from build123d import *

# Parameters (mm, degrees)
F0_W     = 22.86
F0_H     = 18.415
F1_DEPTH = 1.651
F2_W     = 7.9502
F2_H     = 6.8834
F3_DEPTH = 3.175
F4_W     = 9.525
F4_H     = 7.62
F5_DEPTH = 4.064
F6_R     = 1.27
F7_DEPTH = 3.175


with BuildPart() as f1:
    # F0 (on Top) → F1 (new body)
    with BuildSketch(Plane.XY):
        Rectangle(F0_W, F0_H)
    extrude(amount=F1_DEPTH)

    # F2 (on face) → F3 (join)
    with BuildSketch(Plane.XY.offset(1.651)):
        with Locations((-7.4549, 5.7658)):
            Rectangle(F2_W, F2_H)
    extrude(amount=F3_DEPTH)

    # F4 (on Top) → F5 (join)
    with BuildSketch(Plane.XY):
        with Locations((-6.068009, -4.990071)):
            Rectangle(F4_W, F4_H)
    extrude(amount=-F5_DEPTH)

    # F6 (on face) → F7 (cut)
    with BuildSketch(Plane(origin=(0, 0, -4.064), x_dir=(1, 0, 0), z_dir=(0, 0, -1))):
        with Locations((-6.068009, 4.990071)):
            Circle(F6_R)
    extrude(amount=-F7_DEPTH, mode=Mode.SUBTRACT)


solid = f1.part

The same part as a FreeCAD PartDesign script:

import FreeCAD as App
import Part
import Sketcher
Q = App.Units.Quantity

doc = App.newDocument("Part")
body = doc.addObject("PartDesign::Body", "Body")

# Sketch on XY plane
sketch1 = doc.addObject("Sketcher::SketchObject", "Sketch")
body.addObject(sketch1)
sketch1.AttachmentSupport = (doc.XY_Plane, [""])
sketch1.MapMode = "FlatFace"
sketch1.addGeometry([
    Part.LineSegment(App.Vector(-11.43, 9.2075, 0), App.Vector(-11.43, -9.2075, 0)),
    Part.LineSegment(App.Vector(-11.43, -9.2075, 0), App.Vector(11.43, -9.2075, 0)),
    Part.LineSegment(App.Vector(11.43, -9.2075, 0), App.Vector(11.43, 9.2075, 0)),
    Part.LineSegment(App.Vector(11.43, 9.2075, 0), App.Vector(-11.43, 9.2075, 0)),
], False)
sketch1.addConstraint([
    Sketcher.Constraint("Coincident", 0, 2, 1, 1),
    Sketcher.Constraint("Coincident", 1, 2, 2, 1),
    Sketcher.Constraint("Coincident", 2, 2, 3, 1),
    Sketcher.Constraint("Coincident", 3, 2, 0, 1),
    Sketcher.Constraint("Vertical", 0),
    Sketcher.Constraint("Horizontal", 1),
    Sketcher.Constraint("Vertical", 2),
    Sketcher.Constraint("Horizontal", 3),
    Sketcher.Constraint("Symmetric", 0, 2, 2, 2, -1, 1),
    Sketcher.Constraint("DistanceX", 1, 1, 1, 2, Q("0.9 in")),
    Sketcher.Constraint("DistanceY", 0, 2, 0, 1, Q("0.725 in")),
])
pad1 = doc.addObject("PartDesign::Pad", "Pad")
body.addObject(pad1)
pad1.Profile = sketch1
pad1.Length = Q("0.065 in")

# Sketch on XY plane
sketch2 = doc.addObject("Sketcher::SketchObject", "Sketch001")
body.addObject(sketch2)
sketch2.AttachmentSupport = (doc.XY_Plane, [""])
sketch2.MapMode = "FlatFace"
sketch2.AttachmentOffset = App.Placement(App.Vector(0, 0, 0.065 * 25.4), App.Rotation())
sketch2.addGeometry([
    Part.LineSegment(App.Vector(-11.43, 9.2075, 0), App.Vector(-11.43, 2.3241, 0)),
    Part.LineSegment(App.Vector(-11.43, 2.3241, 0), App.Vector(-3.4798, 2.3241, 0)),
    Part.LineSegment(App.Vector(-3.4798, 2.3241, 0), App.Vector(-3.4798, 9.2075, 0)),
    Part.LineSegment(App.Vector(-3.4798, 9.2075, 0), App.Vector(-11.43, 9.2075, 0)),
], False)
sketch2.addConstraint([
    Sketcher.Constraint("Coincident", 0, 2, 1, 1),
    Sketcher.Constraint("Coincident", 1, 2, 2, 1),
    Sketcher.Constraint("Coincident", 2, 2, 3, 1),
    Sketcher.Constraint("Coincident", 3, 2, 0, 1),
    Sketcher.Constraint("Vertical", 0),
    Sketcher.Constraint("Horizontal", 1),
    Sketcher.Constraint("Vertical", 2),
    Sketcher.Constraint("Horizontal", 3),
    Sketcher.Constraint("DistanceX", 1, 1, 1, 2, Q("0.313 in")),
    Sketcher.Constraint("DistanceY", 0, 2, 0, 1, Q("0.271 in")),
    Sketcher.Constraint("DistanceX", 0, 2, -1, 1, Q("0.45 in")),
    Sketcher.Constraint("DistanceY", -1, 1, 0, 2, Q("0.0915 in")),
])
pad2 = doc.addObject("PartDesign::Pad", "Pad001")
body.addObject(pad2)
pad2.Profile = sketch2
pad2.Length = Q("0.125 in")

# Sketch on XY plane
sketch3 = doc.addObject("Sketcher::SketchObject", "Sketch002")
body.addObject(sketch3)
sketch3.AttachmentSupport = (doc.XY_Plane, [""])
sketch3.MapMode = "FlatFace"
sketch3.addGeometry([
    Part.LineSegment(App.Vector(-10.830509, -1.180071, 0), App.Vector(-10.830509, -8.800071, 0)),
    Part.LineSegment(App.Vector(-10.830509, -8.800071, 0), App.Vector(-1.305509, -8.800071, 0)),
    Part.LineSegment(App.Vector(-1.305509, -8.800071, 0), App.Vector(-1.305509, -1.180071, 0)),
    Part.LineSegment(App.Vector(-1.305509, -1.180071, 0), App.Vector(-10.830509, -1.180071, 0)),
], False)
sketch3.addConstraint([
    Sketcher.Constraint("Coincident", 0, 2, 1, 1),
    Sketcher.Constraint("Coincident", 1, 2, 2, 1),
    Sketcher.Constraint("Coincident", 2, 2, 3, 1),
    Sketcher.Constraint("Coincident", 3, 2, 0, 1),
    Sketcher.Constraint("Vertical", 0),
    Sketcher.Constraint("Horizontal", 1),
    Sketcher.Constraint("Vertical", 2),
    Sketcher.Constraint("Horizontal", 3),
    Sketcher.Constraint("DistanceY", 0, 2, 0, 1, Q("0.3 in")),
    Sketcher.Constraint("DistanceX", 1, 1, 1, 2, Q("0.375 in")),
    Sketcher.Constraint("DistanceX", 0, 2, -1, 1, 10.830509),
    Sketcher.Constraint("DistanceY", 0, 2, -1, 1, 8.800071),
])
pad3 = doc.addObject("PartDesign::Pad", "Pad002")
body.addObject(pad3)
pad3.Profile = sketch3
pad3.Length = Q("0.16 in")
pad3.Reversed = True

# Sketch on XY plane
sketch4 = doc.addObject("Sketcher::SketchObject", "Sketch003")
body.addObject(sketch4)
sketch4.AttachmentSupport = (doc.XY_Plane, [""])
sketch4.MapMode = "FlatFace"
sketch4.AttachmentOffset = App.Placement(App.Vector(0, 0, -0.16 * 25.4), App.Rotation())
sketch4.addGeometry(Part.Circle(App.Vector(-6.068009, -4.990071, 0), App.Vector(0, 0, 1), 1.27), False)
sketch4.addConstraint([
    Sketcher.Constraint("Diameter", 0, Q("0.1 in")),
    Sketcher.Constraint("DistanceX", 0, 3, -1, 1, 6.068009),
    Sketcher.Constraint("DistanceY", 0, 3, -1, 1, 4.990071),
])
pocket1 = doc.addObject("PartDesign::Pocket", "Pocket")
body.addObject(pocket1)
pocket1.Profile = sketch4
pocket1.Length = Q("0.125 in")
pocket1.Reversed = True

doc.recompute()
